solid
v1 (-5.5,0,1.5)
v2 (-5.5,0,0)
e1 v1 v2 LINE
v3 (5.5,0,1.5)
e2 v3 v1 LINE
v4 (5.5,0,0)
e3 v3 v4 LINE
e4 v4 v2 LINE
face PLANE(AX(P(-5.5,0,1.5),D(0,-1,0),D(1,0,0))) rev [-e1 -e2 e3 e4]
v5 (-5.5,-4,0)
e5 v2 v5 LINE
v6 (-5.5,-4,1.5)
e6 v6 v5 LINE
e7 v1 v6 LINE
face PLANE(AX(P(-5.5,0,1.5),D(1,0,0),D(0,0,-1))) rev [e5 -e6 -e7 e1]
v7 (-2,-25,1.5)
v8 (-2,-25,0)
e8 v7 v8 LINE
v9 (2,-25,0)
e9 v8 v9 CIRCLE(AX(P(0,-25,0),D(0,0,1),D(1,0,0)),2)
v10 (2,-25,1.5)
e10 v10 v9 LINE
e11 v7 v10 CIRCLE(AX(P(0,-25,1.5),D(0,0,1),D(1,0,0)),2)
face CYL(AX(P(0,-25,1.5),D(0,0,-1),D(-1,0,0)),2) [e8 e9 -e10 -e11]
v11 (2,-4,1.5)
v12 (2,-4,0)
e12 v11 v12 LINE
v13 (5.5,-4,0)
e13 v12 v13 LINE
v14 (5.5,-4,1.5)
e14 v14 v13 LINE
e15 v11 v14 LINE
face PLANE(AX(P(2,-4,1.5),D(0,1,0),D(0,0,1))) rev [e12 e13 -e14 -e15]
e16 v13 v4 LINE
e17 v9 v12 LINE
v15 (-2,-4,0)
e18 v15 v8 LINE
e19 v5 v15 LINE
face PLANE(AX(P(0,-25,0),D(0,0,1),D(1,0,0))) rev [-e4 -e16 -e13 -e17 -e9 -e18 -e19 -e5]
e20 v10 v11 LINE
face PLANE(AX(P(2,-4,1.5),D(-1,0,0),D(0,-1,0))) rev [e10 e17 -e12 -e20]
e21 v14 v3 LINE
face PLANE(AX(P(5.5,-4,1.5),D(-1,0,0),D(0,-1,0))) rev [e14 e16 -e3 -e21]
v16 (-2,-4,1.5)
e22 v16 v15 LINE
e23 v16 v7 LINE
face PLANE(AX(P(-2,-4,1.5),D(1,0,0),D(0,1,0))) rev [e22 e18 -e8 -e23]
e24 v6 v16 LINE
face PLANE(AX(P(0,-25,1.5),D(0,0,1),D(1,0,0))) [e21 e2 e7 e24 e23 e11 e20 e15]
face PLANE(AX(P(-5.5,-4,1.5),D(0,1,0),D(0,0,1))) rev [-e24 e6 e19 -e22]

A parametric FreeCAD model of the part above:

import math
import FreeCAD as App
import Part
import Sketcher
Q = App.Units.Quantity

doc = App.newDocument("Part")
params = doc.addObject("Spreadsheet::Sheet", "Params")
for row, (alias, value) in enumerate([
    ("sketch1_radius", "2 mm"),
    ("sketch1_width", "11 mm"),
    ("sketch1_height", "4 mm"),
    ("sketch1_height2", "21 mm"),
    ("pad1_length", "1.5 mm"),
], start=1):
    params.set(f"A{row}", alias)
    params.set(f"B{row}", "=" + value)
    params.setAlias(f"B{row}", alias)

body = doc.addObject("PartDesign::Body", "Body")

# Sketch on XY plane
sketch1 = body.newObject("Sketcher::SketchObject", "Sketch")
sketch1.AttachmentSupport = (doc.getObject("XY_Plane"), [""])
sketch1.MapMode = "FlatFace"
sketch1.addGeometry(Part.LineSegment(App.Vector(5.5, 0, 0), App.Vector(-5.5, 0, 0)), False)
sketch1.addGeometry(Part.LineSegment(App.Vector(-5.5, 0, 0), App.Vector(-5.5, -4, 0)), False)
sketch1.addGeometry(Part.LineSegment(App.Vector(-5.5, -4, 0), App.Vector(-2, -4, 0)), False)
sketch1.addGeometry(Part.LineSegment(App.Vector(-2, -4, 0), App.Vector(-2, -25, 0)), False)
sketch1.addGeometry(Part.ArcOfCircle(Part.Circle(App.Vector(0, -25, 0), App.Vector(0, 0, 1), 2), math.radians(180), math.radians(360)), False)
sketch1.addGeometry(Part.LineSegment(App.Vector(2, -25, 0), App.Vector(2, -4, 0)), False)
sketch1.addGeometry(Part.LineSegment(App.Vector(2, -4, 0), App.Vector(5.5, -4, 0)), False)
sketch1.addGeometry(Part.LineSegment(App.Vector(5.5, -4, 0), App.Vector(5.5, 0, 0)), False)
sketch1.addConstraint(Sketcher.Constraint("Coincident", 0, 2, 1, 1))
sketch1.addConstraint(Sketcher.Constraint("Coincident", 1, 2, 2, 1))
sketch1.addConstraint(Sketcher.Constraint("Coincident", 2, 2, 3, 1))
sketch1.addConstraint(Sketcher.Constraint("Tangent", 3, 2, 4, 1))
sketch1.addConstraint(Sketcher.Constraint("Tangent", 4, 2, 5, 1))
sketch1.addConstraint(Sketcher.Constraint("Coincident", 5, 2, 6, 1))
sketch1.addConstraint(Sketcher.Constraint("Coincident", 6, 2, 7, 1))
sketch1.addConstraint(Sketcher.Constraint("Coincident", 7, 2, 0, 1))
sketch1.addConstraint(Sketcher.Constraint("Horizontal", 0))
sketch1.addConstraint(Sketcher.Constraint("Vertical", 1))
sketch1.addConstraint(Sketcher.Constraint("Horizontal", 2))
sketch1.addConstraint(Sketcher.Constraint("Vertical", 3))
sketch1.addConstraint(Sketcher.Constraint("Vertical", 5))
sketch1.addConstraint(Sketcher.Constraint("Horizontal", 6))
sketch1.addConstraint(Sketcher.Constraint("Vertical", 7))
sketch1.addConstraint(Sketcher.Constraint("Symmetric", 0, 2, 7, 2, -1, 1))
sketch1.addConstraint(Sketcher.Constraint("Symmetric", 2, 2, 5, 2, -2))
sketch1.addConstraint(Sketcher.Constraint("Radius", 4, Q("2 mm")))
sketch1.addConstraint(Sketcher.Constraint("DistanceX", 0, 2, 0, 1, Q("11 mm")))
sketch1.addConstraint(Sketcher.Constraint("DistanceY", 1, 2, 1, 1, Q("4 mm")))
sketch1.addConstraint(Sketcher.Constraint("DistanceY", 3, 2, 3, 1, Q("21 mm")))
sketch1.setExpression("Constraints[17]", "Params.sketch1_radius")
sketch1.setExpression("Constraints[18]", "Params.sketch1_width")
sketch1.setExpression("Constraints[19]", "Params.sketch1_height")
sketch1.setExpression("Constraints[20]", "Params.sketch1_height2")
pad1 = body.newObject("PartDesign::Pad", "Pad")
pad1.Profile = sketch1
pad1.setExpression("Length", "Params.pad1_length")

doc.recompute()
